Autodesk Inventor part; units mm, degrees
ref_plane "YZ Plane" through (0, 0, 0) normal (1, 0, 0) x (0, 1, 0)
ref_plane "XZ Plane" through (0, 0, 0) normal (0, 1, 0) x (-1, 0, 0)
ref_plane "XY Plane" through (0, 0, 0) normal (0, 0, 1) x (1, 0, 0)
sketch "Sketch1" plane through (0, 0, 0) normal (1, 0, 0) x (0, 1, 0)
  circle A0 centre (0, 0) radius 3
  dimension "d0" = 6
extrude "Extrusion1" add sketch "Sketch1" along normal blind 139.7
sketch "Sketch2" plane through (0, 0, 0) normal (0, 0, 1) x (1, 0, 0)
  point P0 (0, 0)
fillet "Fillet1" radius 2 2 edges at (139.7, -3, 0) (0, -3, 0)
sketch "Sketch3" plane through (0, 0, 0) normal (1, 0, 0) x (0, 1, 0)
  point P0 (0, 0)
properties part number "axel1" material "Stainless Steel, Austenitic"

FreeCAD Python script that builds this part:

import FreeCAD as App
import Part
import Sketcher
from FreeCAD import Vector
Q = App.Units.Quantity


def edges_at(feature, points):
    """Names of the edges that pass closest to the given points."""
    edges = feature.Shape.Edges
    near = lambda p: min(range(len(edges)), key=lambda i: edges[i].distToShape(Part.Vertex(*p))[0])
    return sorted({f"Edge{near(p) + 1}" for p in points})

doc = App.newDocument("Part")
body = doc.addObject("PartDesign::Body", "Body")

# Sketch on YZ plane
sketch1 = doc.addObject("Sketcher::SketchObject", "Sketch")
body.addObject(sketch1)
sketch1.AttachmentSupport = (doc.YZ_Plane, [""])
sketch1.MapMode = "FlatFace"
sketch1.addGeometry(Part.Circle(Vector(0, 0, 0), Vector(0, 0, 1), 3), False)
sketch1.addConstraint([
    Sketcher.Constraint("Coincident", 0, 3, -1, 1),
    Sketcher.Constraint("Diameter", 0, Q("6 mm")),
])
pad1 = doc.addObject("PartDesign::Pad", "Pad")
body.addObject(pad1)
pad1.Profile = sketch1
pad1.Length = 139.7
doc.recompute()

fillet = doc.addObject("PartDesign::Fillet", "Fillet")
body.addObject(fillet)
fillet.Base = (pad1, edges_at(pad1, [(139.7, -3, 0), (0, -3, 0)]))
fillet.Radius = 2

doc.recompute()
